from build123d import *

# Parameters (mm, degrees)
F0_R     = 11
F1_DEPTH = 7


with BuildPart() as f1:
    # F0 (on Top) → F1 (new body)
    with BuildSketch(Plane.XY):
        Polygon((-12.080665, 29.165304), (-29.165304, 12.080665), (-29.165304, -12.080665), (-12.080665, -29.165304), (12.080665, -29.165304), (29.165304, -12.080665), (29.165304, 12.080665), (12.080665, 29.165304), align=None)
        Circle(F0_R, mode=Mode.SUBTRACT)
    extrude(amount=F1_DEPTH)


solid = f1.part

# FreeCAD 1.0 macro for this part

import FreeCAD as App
import Part
import Sketcher

V = App.Vector


def add_polygon(sketch, points):
    """Adds a closed chain of lines whose ends are joined by coincident constraints."""
    first, n = sketch.GeometryCount, len(points)
    for a, b in zip(points, points[1:] + points[:1]):
        sketch.addGeometry(Part.LineSegment(App.Vector(*a, 0), App.Vector(*b, 0)), False)
    for i in range(n):
        sketch.addConstraint(Sketcher.Constraint("Coincident", first + i, 2, first + (i + 1) % n, 1))

doc = App.newDocument("Part")
body = doc.addObject("PartDesign::Body", "Body")

sketch1 = body.newObject("Sketcher::SketchObject", "Sketch")
sketch1.AttachmentSupport = (doc.getObject("XY_Plane"), [""])
sketch1.MapMode = "FlatFace"
add_polygon(sketch1, [(-12, 29), (-29, 12), (-29, -12), (-12, -29), (12, -29), (29, -12), (29, 12), (12, 29)])
sketch1.addGeometry(Part.Circle(V(0, 0, 0), V(0, 0, 1), 11), False)
sketch1.addConstraint([
    Sketcher.Constraint("Vertical", 1),
    Sketcher.Constraint("Horizontal", 3),
    Sketcher.Constraint("Vertical", 5),
    Sketcher.Constraint("Horizontal", 7),
    Sketcher.Constraint("Coincident", 8, 3, -1, 1),
    Sketcher.Constraint("Symmetric", 0, 2, 4, 2, -1, 1),
    Sketcher.Constraint("Symmetric", 2, 2, 6, 2, -1, 1),
    Sketcher.Constraint("Perpendicular", 0, 2),
    Sketcher.Constraint("Perpendicular", 2, 4),
    Sketcher.Constraint("Perpendicular", 4, 6),
    Sketcher.Constraint("Horizontal", 1, 2, 4, 2),
    Sketcher.Constraint("Vertical", 3, 2, 6, 2),
    Sketcher.Constraint("Equal", 7, 1),
    Sketcher.Constraint("Diameter", 8, 22.0),
    Sketcher.Constraint("DistanceX", 3, 1, 3, 2, 24.16133),
    Sketcher.Constraint("Distance", 0, 24.161328),
])
pad1 = body.newObject("PartDesign::Pad", "Pad")
pad1.Profile = sketch1
pad1.Length = 7

doc.recompute()
